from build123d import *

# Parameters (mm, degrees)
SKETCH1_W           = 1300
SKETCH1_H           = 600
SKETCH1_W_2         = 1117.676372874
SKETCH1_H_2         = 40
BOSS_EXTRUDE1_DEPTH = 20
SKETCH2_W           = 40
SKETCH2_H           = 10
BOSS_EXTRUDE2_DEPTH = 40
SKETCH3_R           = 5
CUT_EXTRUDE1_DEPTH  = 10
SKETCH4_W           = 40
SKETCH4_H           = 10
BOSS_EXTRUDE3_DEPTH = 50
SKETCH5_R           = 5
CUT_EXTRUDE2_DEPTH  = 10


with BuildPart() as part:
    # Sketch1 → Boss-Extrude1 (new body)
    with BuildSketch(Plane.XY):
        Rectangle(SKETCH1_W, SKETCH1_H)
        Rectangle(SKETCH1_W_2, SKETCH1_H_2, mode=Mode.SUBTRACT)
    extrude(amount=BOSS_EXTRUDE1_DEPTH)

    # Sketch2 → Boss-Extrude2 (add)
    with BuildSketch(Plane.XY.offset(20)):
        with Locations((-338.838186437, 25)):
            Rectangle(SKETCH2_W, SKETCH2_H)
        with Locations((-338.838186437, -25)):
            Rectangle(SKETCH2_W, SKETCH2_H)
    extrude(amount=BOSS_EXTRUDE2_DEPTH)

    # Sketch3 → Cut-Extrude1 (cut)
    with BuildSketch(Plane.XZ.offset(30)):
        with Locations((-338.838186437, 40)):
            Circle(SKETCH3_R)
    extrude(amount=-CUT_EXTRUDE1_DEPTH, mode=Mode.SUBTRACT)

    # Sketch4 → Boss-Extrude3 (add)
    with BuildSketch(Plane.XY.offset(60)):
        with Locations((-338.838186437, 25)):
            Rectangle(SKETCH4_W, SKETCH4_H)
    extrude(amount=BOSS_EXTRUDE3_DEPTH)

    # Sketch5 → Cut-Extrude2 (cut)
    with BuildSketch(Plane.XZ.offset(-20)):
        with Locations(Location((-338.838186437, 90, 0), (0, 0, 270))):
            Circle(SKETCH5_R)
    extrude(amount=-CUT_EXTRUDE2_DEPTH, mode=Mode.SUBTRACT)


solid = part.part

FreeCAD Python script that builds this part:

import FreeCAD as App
import Part
import Sketcher
from FreeCAD import Vector

doc = App.newDocument("Part")
body = doc.addObject("PartDesign::Body", "Body")

# Sketch on XY plane
sketch1 = body.newObject("Sketcher::SketchObject", "Sketch")
sketch1.AttachmentSupport = (doc.getObject("XY_Plane"), [""])
sketch1.MapMode = "FlatFace"
sketch1.addGeometry(Part.LineSegment(Vector(-650, 300, 0), Vector(-650, -300, 0)), False)
sketch1.addGeometry(Part.LineSegment(Vector(-650, -300, 0), Vector(650, -300, 0)), False)
sketch1.addGeometry(Part.LineSegment(Vector(650, -300, 0), Vector(650, 300, 0)), False)
sketch1.addGeometry(Part.LineSegment(Vector(650, 300, 0), Vector(-650, 300, 0)), False)
sketch1.addGeometry(Part.LineSegment(Vector(559, -20, 0), Vector(-559, -20, 0)), False)
sketch1.addGeometry(Part.LineSegment(Vector(-559, -20, 0), Vector(-559, 20, 0)), False)
sketch1.addGeometry(Part.LineSegment(Vector(-559, 20, 0), Vector(559, 20, 0)), False)
sketch1.addGeometry(Part.LineSegment(Vector(559, 20, 0), Vector(559, -20, 0)), False)
sketch1.addConstraint(Sketcher.Constraint("Coincident", 0, 2, 1, 1))
sketch1.addConstraint(Sketcher.Constraint("Coincident", 1, 2, 2, 1))
sketch1.addConstraint(Sketcher.Constraint("Coincident", 2, 2, 3, 1))
sketch1.addConstraint(Sketcher.Constraint("Coincident", 3, 2, 0, 1))
sketch1.addConstraint(Sketcher.Constraint("Coincident", 4, 2, 5, 1))
sketch1.addConstraint(Sketcher.Constraint("Coincident", 5, 2, 6, 1))
sketch1.addConstraint(Sketcher.Constraint("Coincident", 6, 2, 7, 1))
sketch1.addConstraint(Sketcher.Constraint("Coincident", 7, 2, 4, 1))
sketch1.addConstraint(Sketcher.Constraint("Vertical", 0))
sketch1.addConstraint(Sketcher.Constraint("Horizontal", 1))
sketch1.addConstraint(Sketcher.Constraint("Vertical", 2))
sketch1.addConstraint(Sketcher.Constraint("Horizontal", 3))
sketch1.addConstraint(Sketcher.Constraint("Horizontal", 4))
sketch1.addConstraint(Sketcher.Constraint("Vertical", 5))
sketch1.addConstraint(Sketcher.Constraint("Horizontal", 6))
sketch1.addConstraint(Sketcher.Constraint("Vertical", 7))
sketch1.addConstraint(Sketcher.Constraint("Symmetric", 0, 2, 2, 2, -1, 1))
sketch1.addConstraint(Sketcher.Constraint("Symmetric", 4, 2, 6, 2, -1, 1))
sketch1.addConstraint(Sketcher.Constraint("DistanceX", 1, 1, 1, 2, 1300.0))
sketch1.addConstraint(Sketcher.Constraint("DistanceY", 0, 2, 0, 1, 600.0))
sketch1.addConstraint(Sketcher.Constraint("DistanceY", 5, 1, 5, 2, 40.0))
sketch1.addConstraint(Sketcher.Constraint("DistanceX", 4, 2, 4, 1, 1117.676373))
pad1 = body.newObject("PartDesign::Pad", "Pad")
pad1.Profile = sketch1
pad1.Length = 20

# Sketch on XY plane
sketch2 = body.newObject("Sketcher::SketchObject", "Sketch001")
sketch2.AttachmentSupport = (doc.getObject("XY_Plane"), [""])
sketch2.MapMode = "FlatFace"
sketch2.AttachmentOffset = App.Placement(Vector(0, 0, 20), App.Rotation())
sketch2.addGeometry(Part.LineSegment(Vector(-359, 30, 0), Vector(-359, 20, 0)), False)
sketch2.addGeometry(Part.LineSegment(Vector(-359, 20, 0), Vector(-319, 20, 0)), False)
sketch2.addGeometry(Part.LineSegment(Vector(-319, 20, 0), Vector(-319, 30, 0)), False)
sketch2.addGeometry(Part.LineSegment(Vector(-319, 30, 0), Vector(-359, 30, 0)), False)
sketch2.addGeometry(Part.LineSegment(Vector(-359, -20, 0), Vector(-359, -30, 0)), False)
sketch2.addGeometry(Part.LineSegment(Vector(-359, -30, 0), Vector(-319, -30, 0)), False)
sketch2.addGeometry(Part.LineSegment(Vector(-319, -30, 0), Vector(-319, -20, 0)), False)
sketch2.addGeometry(Part.LineSegment(Vector(-319, -20, 0), Vector(-359, -20, 0)), False)
sketch2.addConstraint(Sketcher.Constraint("Coincident", 0, 2, 1, 1))
sketch2.addConstraint(Sketcher.Constraint("Coincident", 1, 2, 2, 1))
sketch2.addConstraint(Sketcher.Constraint("Coincident", 2, 2, 3, 1))
sketch2.addConstraint(Sketcher.Constraint("Coincident", 3, 2, 0, 1))
sketch2.addConstraint(Sketcher.Constraint("Coincident", 4, 2, 5, 1))
sketch2.addConstraint(Sketcher.Constraint("Coincident", 5, 2, 6, 1))
sketch2.addConstraint(Sketcher.Constraint("Coincident", 6, 2, 7, 1))
sketch2.addConstraint(Sketcher.Constraint("Coincident", 7, 2, 4, 1))
sketch2.addConstraint(Sketcher.Constraint("Vertical", 0))
sketch2.addConstraint(Sketcher.Constraint("Horizontal", 1))
sketch2.addConstraint(Sketcher.Constraint("Vertical", 2))
sketch2.addConstraint(Sketcher.Constraint("Horizontal", 3))
sketch2.addConstraint(Sketcher.Constraint("Vertical", 4))
sketch2.addConstraint(Sketcher.Constraint("Horizontal", 5))
sketch2.addConstraint(Sketcher.Constraint("Vertical", 6))
sketch2.addConstraint(Sketcher.Constraint("Horizontal", 7))
sketch2.addConstraint(Sketcher.Constraint("Symmetric", 3, 2, 4, 2, -1))
sketch2.addConstraint(Sketcher.Constraint("Symmetric", 1, 2, 6, 2, -1))
sketch2.addConstraint(Sketcher.Constraint("DistanceX", 1, 1, 1, 2, 40.0))
sketch2.addConstraint(Sketcher.Constraint("DistanceY", 0, 2, 0, 1, 10.0))
sketch2.addConstraint(Sketcher.Constraint("DistanceY", -1, 1, 0, 2, 20.0))
sketch2.addConstraint(Sketcher.Constraint("DistanceX", 0, 2, -1, 1, 358.838186))
pad2 = body.newObject("PartDesign::Pad", "Pad001")
pad2.Profile = sketch2
pad2.Length = 40

# Sketch on XZ plane
sketch3 = body.newObject("Sketcher::SketchObject", "Sketch002")
sketch3.AttachmentSupport = (doc.getObject("XZ_Plane"), [""])
sketch3.MapMode = "FlatFace"
sketch3.AttachmentOffset = App.Placement(Vector(0, 0, 30), App.Rotation())
sketch3.addGeometry(Part.Circle(Vector(-339, 40, 0), Vector(0, 0, 1), 5), False)
sketch3.addConstraint(Sketcher.Constraint("Diameter", 0, 10.0))
sketch3.addConstraint(Sketcher.Constraint("DistanceY", -1, 1, 0, 3, 40.0))
sketch3.addConstraint(Sketcher.Constraint("DistanceX", 0, 3, -1, 1, 338.838186))
pocket1 = body.newObject("PartDesign::Pocket", "Pocket")
pocket1.Profile = sketch3
pocket1.Length = 10

# Sketch on XY plane
sketch4 = body.newObject("Sketcher::SketchObject", "Sketch003")
sketch4.AttachmentSupport = (doc.getObject("XY_Plane"), [""])
sketch4.MapMode = "FlatFace"
sketch4.AttachmentOffset = App.Placement(Vector(0, 0, 60), App.Rotation())
sketch4.addGeometry(Part.LineSegment(Vector(-359, 30, 0), Vector(-359, 20, 0)), False)
sketch4.addGeometry(Part.LineSegment(Vector(-359, 20, 0), Vector(-319, 20, 0)), False)
sketch4.addGeometry(Part.LineSegment(Vector(-319, 20, 0), Vector(-319, 30, 0)), False)
sketch4.addGeometry(Part.LineSegment(Vector(-319, 30, 0), Vector(-359, 30, 0)), False)
sketch4.addConstraint(Sketcher.Constraint("Coincident", 0, 2, 1, 1))
sketch4.addConstraint(Sketcher.Constraint("Coincident", 1, 2, 2, 1))
sketch4.addConstraint(Sketcher.Constraint("Coincident", 2, 2, 3, 1))
sketch4.addConstraint(Sketcher.Constraint("Coincident", 3, 2, 0, 1))
sketch4.addConstraint(Sketcher.Constraint("Vertical", 0))
sketch4.addConstraint(Sketcher.Constraint("Horizontal", 1))
sketch4.addConstraint(Sketcher.Constraint("Vertical", 2))
sketch4.addConstraint(Sketcher.Constraint("Horizontal", 3))
sketch4.addConstraint(Sketcher.Constraint("DistanceX", 1, 1, 1, 2, 40.0))
sketch4.addConstraint(Sketcher.Constraint("DistanceY", 0, 2, 0, 1, 10.0))
sketch4.addConstraint(Sketcher.Constraint("DistanceY", -1, 1, 0, 2, 20.0))
sketch4.addConstraint(Sketcher.Constraint("DistanceX", 0, 2, -1, 1, 358.838186))
pad3 = body.newObject("PartDesign::Pad", "Pad002")
pad3.Profile = sketch4
pad3.Length = 50

# Sketch on XZ plane
sketch5 = body.newObject("Sketcher::SketchObject", "Sketch004")
sketch5.AttachmentSupport = (doc.getObject("XZ_Plane"), [""])
sketch5.MapMode = "FlatFace"
sketch5.AttachmentOffset = App.Placement(Vector(0, 0, -20), App.Rotation())
sketch5.addGeometry(Part.Circle(Vector(-339, 90, 0), Vector(0, 0, 1), 5), False)
sketch5.addConstraint(Sketcher.Constraint("Diameter", 0, 10.0))
sketch5.addConstraint(Sketcher.Constraint("DistanceY", -1, 1, 0, 3, 90.0))
sketch5.addConstraint(Sketcher.Constraint("DistanceX", 0, 3, -1, 1, 338.838186))
pocket2 = body.newObject("PartDesign::Pocket", "Pocket001")
pocket2.Profile = sketch5
pocket2.Length = 10

doc.recompute()
